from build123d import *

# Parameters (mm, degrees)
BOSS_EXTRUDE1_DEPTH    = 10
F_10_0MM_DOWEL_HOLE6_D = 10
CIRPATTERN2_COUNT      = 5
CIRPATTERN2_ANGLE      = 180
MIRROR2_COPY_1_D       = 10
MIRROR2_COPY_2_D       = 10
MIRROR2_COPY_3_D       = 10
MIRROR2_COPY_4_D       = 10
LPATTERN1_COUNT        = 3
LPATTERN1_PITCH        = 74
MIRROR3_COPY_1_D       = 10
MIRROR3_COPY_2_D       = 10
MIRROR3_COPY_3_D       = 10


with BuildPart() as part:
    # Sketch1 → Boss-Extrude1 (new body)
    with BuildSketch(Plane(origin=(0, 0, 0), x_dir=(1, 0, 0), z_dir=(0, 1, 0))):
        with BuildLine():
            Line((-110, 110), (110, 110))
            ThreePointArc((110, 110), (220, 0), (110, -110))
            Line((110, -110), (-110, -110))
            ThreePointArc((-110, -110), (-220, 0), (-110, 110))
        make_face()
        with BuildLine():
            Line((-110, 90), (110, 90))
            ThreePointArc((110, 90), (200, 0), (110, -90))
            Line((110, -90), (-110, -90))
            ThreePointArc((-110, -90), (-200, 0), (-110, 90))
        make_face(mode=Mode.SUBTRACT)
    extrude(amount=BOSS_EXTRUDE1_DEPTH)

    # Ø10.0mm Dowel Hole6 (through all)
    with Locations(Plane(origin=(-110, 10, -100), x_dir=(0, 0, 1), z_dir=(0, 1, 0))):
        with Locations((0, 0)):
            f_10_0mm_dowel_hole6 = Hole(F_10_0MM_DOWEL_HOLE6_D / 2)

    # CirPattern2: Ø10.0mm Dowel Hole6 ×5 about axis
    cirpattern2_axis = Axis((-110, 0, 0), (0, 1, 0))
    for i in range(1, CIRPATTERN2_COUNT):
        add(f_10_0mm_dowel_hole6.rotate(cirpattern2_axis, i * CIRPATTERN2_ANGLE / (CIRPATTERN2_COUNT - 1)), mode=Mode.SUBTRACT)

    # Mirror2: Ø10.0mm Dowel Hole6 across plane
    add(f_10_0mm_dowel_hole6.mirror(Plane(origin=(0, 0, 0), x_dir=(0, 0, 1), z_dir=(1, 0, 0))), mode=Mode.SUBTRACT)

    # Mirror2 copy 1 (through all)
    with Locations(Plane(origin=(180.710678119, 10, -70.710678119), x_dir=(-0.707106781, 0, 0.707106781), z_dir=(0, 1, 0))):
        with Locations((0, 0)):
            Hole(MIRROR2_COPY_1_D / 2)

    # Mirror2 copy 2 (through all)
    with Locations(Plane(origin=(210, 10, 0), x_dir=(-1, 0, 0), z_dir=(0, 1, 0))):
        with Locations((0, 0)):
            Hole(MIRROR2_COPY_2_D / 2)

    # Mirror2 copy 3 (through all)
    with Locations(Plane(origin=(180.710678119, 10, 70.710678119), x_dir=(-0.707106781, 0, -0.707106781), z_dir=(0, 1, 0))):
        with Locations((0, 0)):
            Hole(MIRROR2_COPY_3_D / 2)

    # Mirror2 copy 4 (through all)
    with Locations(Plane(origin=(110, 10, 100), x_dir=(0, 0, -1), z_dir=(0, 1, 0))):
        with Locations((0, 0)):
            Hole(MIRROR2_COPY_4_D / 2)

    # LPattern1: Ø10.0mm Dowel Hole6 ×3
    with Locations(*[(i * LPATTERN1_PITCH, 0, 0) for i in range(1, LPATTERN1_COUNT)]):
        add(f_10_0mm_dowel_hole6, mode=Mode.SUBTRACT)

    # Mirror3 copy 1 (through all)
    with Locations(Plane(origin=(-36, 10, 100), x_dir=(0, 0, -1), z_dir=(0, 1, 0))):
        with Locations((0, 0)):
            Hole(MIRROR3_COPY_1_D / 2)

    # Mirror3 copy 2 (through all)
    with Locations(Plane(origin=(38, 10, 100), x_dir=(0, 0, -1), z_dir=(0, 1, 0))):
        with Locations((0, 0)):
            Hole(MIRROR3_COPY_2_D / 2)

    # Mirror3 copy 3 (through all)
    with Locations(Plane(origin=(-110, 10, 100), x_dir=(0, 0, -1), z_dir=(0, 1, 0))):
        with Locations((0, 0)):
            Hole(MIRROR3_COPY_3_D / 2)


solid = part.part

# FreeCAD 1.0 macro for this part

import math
import FreeCAD as App
import Part
import Sketcher
Q = App.Units.Quantity

doc = App.newDocument("Part")
params = doc.addObject("Spreadsheet::Sheet", "Params")
for row, (alias, value) in enumerate([
    ("sketch1_radius", "110 mm"),
    ("sketch1_radius2", "90 mm"),
    ("sketch1_width", "220 mm"),
    ("pad1_length", "10 mm"),
    ("sketch2_diameter", "10 mm"),
    ("hole_diameter", "10 mm"),
    ("sketch3_diameter", "10 mm"),
    ("hole2_diameter", "10 mm"),
    ("sketch4_diameter", "10 mm"),
    ("hole3_diameter", "10 mm"),
    ("sketch5_diameter", "10 mm"),
    ("hole4_diameter", "10 mm"),
    ("sketch6_diameter", "10 mm"),
    ("hole5_diameter", "10 mm"),
    ("linearpattern_pitch", "74 mm"),
    ("sketch7_diameter", "10 mm"),
    ("hole6_diameter", "10 mm"),
    ("sketch8_diameter", "10 mm"),
    ("hole7_diameter", "10 mm"),
    ("sketch9_diameter", "10 mm"),
    ("hole8_diameter", "10 mm"),
], start=1):
    params.set(f"A{row}", alias)
    params.set(f"B{row}", "=" + value)
    params.setAlias(f"B{row}", alias)

body = doc.addObject("PartDesign::Body", "Body")

sketch1 = body.newObject("Sketcher::SketchObject", "Sketch")
sketch1.AttachmentSupport = (doc.getObject("XZ_Plane"), [""])
sketch1.MapMode = "FlatFace"
sketch1.addGeometry(Part.LineSegment(App.Vector(110, -110, 0), App.Vector(-110, -110, 0)), False)
sketch1.addGeometry(Part.ArcOfCircle(Part.Circle(App.Vector(-110, 0, 0), App.Vector(0, 0, 1), 110), math.radians(90), math.radians(270)), False)
sketch1.addGeometry(Part.LineSegment(App.Vector(-110, 110, 0), App.Vector(110, 110, 0)), False)
sketch1.addGeometry(Part.ArcOfCircle(Part.Circle(App.Vector(110, 0, 0), App.Vector(0, 0, 1), 110), math.radians(-90), math.radians(90)), False)
sketch1.addGeometry(Part.LineSegment(App.Vector(-110, -90, 0), App.Vector(110, -90, 0)), False)
sketch1.addGeometry(Part.ArcOfCircle(Part.Circle(App.Vector(110, 0, 0), App.Vector(0, 0, 1), 90), math.radians(-90), math.radians(90)), False)
sketch1.addGeometry(Part.LineSegment(App.Vector(110, 90, 0), App.Vector(-110, 90, 0)), False)
sketch1.addGeometry(Part.ArcOfCircle(Part.Circle(App.Vector(-110, 0, 0), App.Vector(0, 0, 1), 90), math.radians(90), math.radians(270)), False)
sketch1.addConstraint(Sketcher.Constraint("Tangent", 0, 2, 1, 2))
sketch1.addConstraint(Sketcher.Constraint("Tangent", 1, 1, 2, 1))
sketch1.addConstraint(Sketcher.Constraint("Tangent", 2, 2, 3, 2))
sketch1.addConstraint(Sketcher.Constraint("Tangent", 3, 1, 0, 1))
sketch1.addConstraint(Sketcher.Constraint("Tangent", 4, 2, 5, 1))
sketch1.addConstraint(Sketcher.Constraint("Tangent", 5, 2, 6, 1))
sketch1.addConstraint(Sketcher.Constraint("Tangent", 6, 2, 7, 1))
sketch1.addConstraint(Sketcher.Constraint("Tangent", 7, 2, 4, 1))
sketch1.addConstraint(Sketcher.Constraint("Horizontal", 0))
sketch1.addConstraint(Sketcher.Constraint("Horizontal", 2))
sketch1.addConstraint(Sketcher.Constraint("Horizontal", 4))
sketch1.addConstraint(Sketcher.Constraint("Horizontal", 6))
sketch1.addConstraint(Sketcher.Constraint("Coincident", 5, 3, 3, 3))
sketch1.addConstraint(Sketcher.Constraint("Symmetric", 1, 3, 3, 3, -1, 1))
sketch1.addConstraint(Sketcher.Constraint("Vertical", 7, 3, 0, 2))
sketch1.addConstraint(Sketcher.Constraint("Radius", 1, Q("110 mm")))
sketch1.addConstraint(Sketcher.Constraint("Radius", 5, Q("90 mm")))
sketch1.addConstraint(Sketcher.Constraint("DistanceX", 0, 2, 0, 1, Q("220 mm")))
sketch1.setExpression("Constraints[15]", "Params.sketch1_radius")
sketch1.setExpression("Constraints[16]", "Params.sketch1_radius2")
sketch1.setExpression("Constraints[17]", "Params.sketch1_width")
pad1 = body.newObject("PartDesign::Pad", "Pad")
pad1.Profile = sketch1
pad1.setExpression("Length", "Params.pad1_length")
pad1.Reversed = True

sketch2 = body.newObject("Sketcher::SketchObject", "Sketch001")
sketch2.AttachmentSupport = (doc.getObject("XZ_Plane"), [""])
sketch2.MapMode = "FlatFace"
sketch2.AttachmentOffset = App.Placement(App.Vector(0, 0, -10), App.Rotation())
sketch2.addGeometry(Part.Circle(App.Vector(-110, -100, 0), App.Vector(0, 0, 1), 5), False)
sketch2.addConstraint(Sketcher.Constraint("Diameter", 0, Q("10 mm")))
sketch2.addConstraint(Sketcher.Constraint("DistanceX", 0, 3, -1, 1, Q("110 mm")))
sketch2.addConstraint(Sketcher.Constraint("DistanceY", 0, 3, -1, 1, Q("100 mm")))
sketch2.setExpression("Constraints[0]", "Params.sketch2_diameter")
doc.recompute()
hole = body.newObject("PartDesign::Hole", "Hole")
hole.Profile = sketch2
hole.ThreadType = "None"
hole.setExpression("Diameter", "Params.hole_diameter")
hole.DepthType = "ThroughAll"
hole.Reversed = True
doc.recompute()

datumline = body.newObject("PartDesign::Line", "DatumLine")
datumline.Placement = App.Placement(App.Vector(-110, 0, 0), App.Rotation(App.Vector(0, 0, 1), App.Vector(0, 1, 0)))
polarpattern = body.newObject("PartDesign::PolarPattern", "PolarPattern")
polarpattern.Originals = [hole]
polarpattern.Axis = (datumline, [""])
polarpattern.Angle = 180
polarpattern.Occurrences = 5
body.Tip = polarpattern
doc.recompute()

mirrored = body.newObject("PartDesign::Mirrored", "Mirrored")
mirrored.Originals = [hole]
mirrored.MirrorPlane = (doc.getObject("YZ_Plane"), [""])
body.Tip = mirrored

sketch3 = body.newObject("Sketcher::SketchObject", "Sketch002")
sketch3.AttachmentSupport = (doc.getObject("XZ_Plane"), [""])
sketch3.MapMode = "FlatFace"
sketch3.AttachmentOffset = App.Placement(App.Vector(0, 0, -10), App.Rotation())
sketch3.addGeometry(Part.Circle(App.Vector(180.710678, -70.710678, 0), App.Vector(0, 0, 1), 5), False)
sketch3.addConstraint(Sketcher.Constraint("Diameter", 0, Q("10 mm")))
sketch3.addConstraint(Sketcher.Constraint("DistanceX", -1, 1, 0, 3, Q("180.710678 mm")))
sketch3.addConstraint(Sketcher.Constraint("DistanceY", 0, 3, -1, 1, Q("70.710678 mm")))
sketch3.setExpression("Constraints[0]", "Params.sketch3_diameter")
doc.recompute()
hole2 = body.newObject("PartDesign::Hole", "Hole001")
hole2.Profile = sketch3
hole2.ThreadType = "None"
hole2.setExpression("Diameter", "Params.hole2_diameter")
hole2.DepthType = "ThroughAll"
hole2.Reversed = True

sketch4 = body.newObject("Sketcher::SketchObject", "Sketch003")
sketch4.AttachmentSupport = (doc.getObject("XZ_Plane"), [""])
sketch4.MapMode = "FlatFace"
sketch4.AttachmentOffset = App.Placement(App.Vector(0, 0, -10), App.Rotation())
sketch4.addGeometry(Part.Circle(App.Vector(210, 0, 0), App.Vector(0, 0, 1), 5), False)
sketch4.addConstraint(Sketcher.Constraint("PointOnObject", 0, 3, -1))
sketch4.addConstraint(Sketcher.Constraint("Diameter", 0, Q("10 mm")))
sketch4.addConstraint(Sketcher.Constraint("DistanceX", -1, 1, 0, 3, Q("210 mm")))
sketch4.setExpression("Constraints[1]", "Params.sketch4_diameter")
doc.recompute()
hole3 = body.newObject("PartDesign::Hole", "Hole002")
hole3.Profile = sketch4
hole3.ThreadType = "None"
hole3.setExpression("Diameter", "Params.hole3_diameter")
hole3.DepthType = "ThroughAll"
hole3.Reversed = True

sketch5 = body.newObject("Sketcher::SketchObject", "Sketch004")
sketch5.AttachmentSupport = (doc.getObject("XZ_Plane"), [""])
sketch5.MapMode = "FlatFace"
sketch5.AttachmentOffset = App.Placement(App.Vector(0, 0, -10), App.Rotation())
sketch5.addGeometry(Part.Circle(App.Vector(180.710678, 70.710678, 0), App.Vector(0, 0, 1), 5), False)
sketch5.addConstraint(Sketcher.Constraint("Diameter", 0, Q("10 mm")))
sketch5.addConstraint(Sketcher.Constraint("DistanceX", -1, 1, 0, 3, Q("180.710678 mm")))
sketch5.addConstraint(Sketcher.Constraint("DistanceY", -1, 1, 0, 3, Q("70.710678 mm")))
sketch5.setExpression("Constraints[0]", "Params.sketch5_diameter")
doc.recompute()
hole4 = body.newObject("PartDesign::Hole", "Hole003")
hole4.Profile = sketch5
hole4.ThreadType = "None"
hole4.setExpression("Diameter", "Params.hole4_diameter")
hole4.DepthType = "ThroughAll"
hole4.Reversed = True

sketch6 = body.newObject("Sketcher::SketchObject", "Sketch005")
sketch6.AttachmentSupport = (doc.getObject("XZ_Plane"), [""])
sketch6.MapMode = "FlatFace"
sketch6.AttachmentOffset = App.Placement(App.Vector(0, 0, -10), App.Rotation())
sketch6.addGeometry(Part.Circle(App.Vector(110, 100, 0), App.Vector(0, 0, 1), 5), False)
sketch6.addConstraint(Sketcher.Constraint("Diameter", 0, Q("10 mm")))
sketch6.addConstraint(Sketcher.Constraint("DistanceX", -1, 1, 0, 3, Q("110 mm")))
sketch6.addConstraint(Sketcher.Constraint("DistanceY", -1, 1, 0, 3, Q("100 mm")))
sketch6.setExpression("Constraints[0]", "Params.sketch6_diameter")
doc.recompute()
hole5 = body.newObject("PartDesign::Hole", "Hole004")
hole5.Profile = sketch6
hole5.ThreadType = "None"
hole5.setExpression("Diameter", "Params.hole5_diameter")
hole5.DepthType = "ThroughAll"
hole5.Reversed = True
doc.recompute()

linearpattern = body.newObject("PartDesign::LinearPattern", "LinearPattern")
linearpattern.Originals = [hole]
linearpattern.Direction = (doc.getObject("X_Axis"), [""])
linearpattern.Mode = "offset"
linearpattern.setExpression("Offset", "Params.linearpattern_pitch")
linearpattern.Occurrences = 3
body.Tip = linearpattern

sketch7 = body.newObject("Sketcher::SketchObject", "Sketch006")
sketch7.AttachmentSupport = (doc.getObject("XZ_Plane"), [""])
sketch7.MapMode = "FlatFace"
sketch7.AttachmentOffset = App.Placement(App.Vector(0, 0, -10), App.Rotation())
sketch7.addGeometry(Part.Circle(App.Vector(-36, 100, 0), App.Vector(0, 0, 1), 5), False)
sketch7.addConstraint(Sketcher.Constraint("Diameter", 0, Q("10 mm")))
sketch7.addConstraint(Sketcher.Constraint("DistanceX", 0, 3, -1, 1, Q("36 mm")))
sketch7.addConstraint(Sketcher.Constraint("DistanceY", -1, 1, 0, 3, Q("100 mm")))
sketch7.setExpression("Constraints[0]", "Params.sketch7_diameter")
doc.recompute()
hole6 = body.newObject("PartDesign::Hole", "Hole005")
hole6.Profile = sketch7
hole6.ThreadType = "None"
hole6.setExpression("Diameter", "Params.hole6_diameter")
hole6.DepthType = "ThroughAll"
hole6.Reversed = True

sketch8 = body.newObject("Sketcher::SketchObject", "Sketch007")
sketch8.AttachmentSupport = (doc.getObject("XZ_Plane"), [""])
sketch8.MapMode = "FlatFace"
sketch8.AttachmentOffset = App.Placement(App.Vector(0, 0, -10), App.Rotation())
sketch8.addGeometry(Part.Circle(App.Vector(38, 100, 0), App.Vector(0, 0, 1), 5), False)
sketch8.addConstraint(Sketcher.Constraint("Diameter", 0, Q("10 mm")))
sketch8.addConstraint(Sketcher.Constraint("DistanceX", -1, 1, 0, 3, Q("38 mm")))
sketch8.addConstraint(Sketcher.Constraint("DistanceY", -1, 1, 0, 3, Q("100 mm")))
sketch8.setExpression("Constraints[0]", "Params.sketch8_diameter")
doc.recompute()
hole7 = body.newObject("PartDesign::Hole", "Hole006")
hole7.Profile = sketch8
hole7.ThreadType = "None"
hole7.setExpression("Diameter", "Params.hole7_diameter")
hole7.DepthType = "ThroughAll"
hole7.Reversed = True

sketch9 = body.newObject("Sketcher::SketchObject", "Sketch008")
sketch9.AttachmentSupport = (doc.getObject("XZ_Plane"), [""])
sketch9.MapMode = "FlatFace"
sketch9.AttachmentOffset = App.Placement(App.Vector(0, 0, -10), App.Rotation())
sketch9.addGeometry(Part.Circle(App.Vector(-110, 100, 0), App.Vector(0, 0, 1), 5), False)
sketch9.addConstraint(Sketcher.Constraint("Diameter", 0, Q("10 mm")))
sketch9.addConstraint(Sketcher.Constraint("DistanceX", 0, 3, -1, 1, Q("110 mm")))
sketch9.addConstraint(Sketcher.Constraint("DistanceY", -1, 1, 0, 3, Q("100 mm")))
sketch9.setExpression("Constraints[0]", "Params.sketch9_diameter")
doc.recompute()
hole8 = body.newObject("PartDesign::Hole", "Hole007")
hole8.Profile = sketch9
hole8.ThreadType = "None"
hole8.setExpression("Diameter", "Params.hole8_diameter")
hole8.DepthType = "ThroughAll"
hole8.Reversed = True

doc.recompute()
